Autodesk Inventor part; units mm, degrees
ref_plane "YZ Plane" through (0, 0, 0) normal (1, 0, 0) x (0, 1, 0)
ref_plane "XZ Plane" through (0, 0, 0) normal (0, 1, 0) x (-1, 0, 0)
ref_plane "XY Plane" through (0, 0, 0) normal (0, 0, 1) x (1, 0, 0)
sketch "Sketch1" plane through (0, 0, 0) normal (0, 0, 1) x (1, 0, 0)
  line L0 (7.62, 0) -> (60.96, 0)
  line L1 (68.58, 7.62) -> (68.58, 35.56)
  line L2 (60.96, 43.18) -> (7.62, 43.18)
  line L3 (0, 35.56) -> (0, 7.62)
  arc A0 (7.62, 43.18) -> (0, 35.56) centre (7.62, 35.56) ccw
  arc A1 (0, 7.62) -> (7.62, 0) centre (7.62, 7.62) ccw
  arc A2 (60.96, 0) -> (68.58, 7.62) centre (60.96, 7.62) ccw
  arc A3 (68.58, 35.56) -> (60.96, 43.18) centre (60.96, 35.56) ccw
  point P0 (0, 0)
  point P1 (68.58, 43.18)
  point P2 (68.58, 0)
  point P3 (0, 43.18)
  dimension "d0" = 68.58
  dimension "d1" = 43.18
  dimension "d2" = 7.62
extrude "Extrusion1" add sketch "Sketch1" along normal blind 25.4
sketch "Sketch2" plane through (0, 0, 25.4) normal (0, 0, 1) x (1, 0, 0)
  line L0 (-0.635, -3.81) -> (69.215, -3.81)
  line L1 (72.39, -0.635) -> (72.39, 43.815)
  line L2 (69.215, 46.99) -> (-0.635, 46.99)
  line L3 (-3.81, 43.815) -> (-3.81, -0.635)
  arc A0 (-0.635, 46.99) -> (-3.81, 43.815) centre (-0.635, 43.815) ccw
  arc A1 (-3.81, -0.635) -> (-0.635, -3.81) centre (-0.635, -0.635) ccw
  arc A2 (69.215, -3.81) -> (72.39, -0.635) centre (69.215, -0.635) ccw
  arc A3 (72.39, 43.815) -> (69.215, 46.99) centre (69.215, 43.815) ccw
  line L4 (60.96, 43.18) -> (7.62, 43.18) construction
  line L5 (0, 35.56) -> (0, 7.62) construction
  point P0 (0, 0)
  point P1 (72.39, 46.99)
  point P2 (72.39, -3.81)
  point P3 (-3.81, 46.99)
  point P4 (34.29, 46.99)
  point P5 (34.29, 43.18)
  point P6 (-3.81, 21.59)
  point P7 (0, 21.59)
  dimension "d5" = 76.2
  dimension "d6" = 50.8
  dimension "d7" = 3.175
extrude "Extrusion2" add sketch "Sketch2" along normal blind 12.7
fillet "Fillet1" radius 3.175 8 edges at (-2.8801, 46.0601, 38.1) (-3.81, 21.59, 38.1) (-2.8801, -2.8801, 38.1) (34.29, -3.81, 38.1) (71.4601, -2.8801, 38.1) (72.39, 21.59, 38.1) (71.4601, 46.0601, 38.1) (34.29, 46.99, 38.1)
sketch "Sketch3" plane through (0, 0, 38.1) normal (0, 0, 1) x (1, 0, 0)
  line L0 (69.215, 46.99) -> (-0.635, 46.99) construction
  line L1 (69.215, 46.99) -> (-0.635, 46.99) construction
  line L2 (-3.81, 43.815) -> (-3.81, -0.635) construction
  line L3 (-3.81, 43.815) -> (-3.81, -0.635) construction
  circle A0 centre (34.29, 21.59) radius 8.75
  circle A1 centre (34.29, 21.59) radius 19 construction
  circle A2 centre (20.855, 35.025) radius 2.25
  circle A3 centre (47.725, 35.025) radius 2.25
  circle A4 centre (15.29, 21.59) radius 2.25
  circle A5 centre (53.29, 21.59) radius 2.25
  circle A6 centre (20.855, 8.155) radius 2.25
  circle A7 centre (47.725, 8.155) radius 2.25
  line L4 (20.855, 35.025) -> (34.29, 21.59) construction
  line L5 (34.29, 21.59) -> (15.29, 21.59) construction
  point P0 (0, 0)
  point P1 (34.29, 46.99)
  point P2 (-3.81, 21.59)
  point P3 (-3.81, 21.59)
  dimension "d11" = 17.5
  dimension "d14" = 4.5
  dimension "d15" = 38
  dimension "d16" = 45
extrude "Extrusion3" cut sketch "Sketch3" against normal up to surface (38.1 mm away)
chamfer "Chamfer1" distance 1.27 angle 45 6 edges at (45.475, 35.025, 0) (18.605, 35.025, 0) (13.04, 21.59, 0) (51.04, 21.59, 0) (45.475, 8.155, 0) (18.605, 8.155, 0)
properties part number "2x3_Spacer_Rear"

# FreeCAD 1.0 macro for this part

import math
import FreeCAD as App
import Part
import Sketcher
from FreeCAD import Vector
Q = App.Units.Quantity


def edges_at(feature, points):
    """Names of the edges that pass closest to the given points."""
    edges = feature.Shape.Edges
    near = lambda p: min(range(len(edges)), key=lambda i: edges[i].distToShape(Part.Vertex(*p))[0])
    return sorted({f"Edge{near(p) + 1}" for p in points})

doc = App.newDocument("Part")
params = doc.addObject("Spreadsheet::Sheet", "Params")
for row, (alias, value) in enumerate([
    ("sketch1_radius", "0.3 in"),
    ("pad1_length", "1 in"),
    ("sketch2_radius", "0.125 in"),
    ("sketch2_width", "2.75 in"),
    ("pad2_length", "0.5 in"),
    ("fillet_radius", "0.125 in"),
    ("pocket1_length", "1.5 in"),
    ("chamfer_size", "0.05 in"),
], start=1):
    params.set(f"A{row}", alias)
    params.set(f"B{row}", "=" + value)
    params.setAlias(f"B{row}", alias)

body = doc.addObject("PartDesign::Body", "Body")

sketch1 = body.newObject("Sketcher::SketchObject", "Sketch")
sketch1.AttachmentSupport = (doc.getObject("XY_Plane"), [""])
sketch1.MapMode = "FlatFace"
sketch1.addGeometry(Part.ArcOfCircle(Part.Circle(Vector(8, 8, 0), Vector(0, 0, 1), 8), math.radians(180), math.radians(270)), False)
sketch1.addGeometry(Part.LineSegment(Vector(8, 0, 0), Vector(61, 0, 0)), False)
sketch1.addGeometry(Part.ArcOfCircle(Part.Circle(Vector(61, 8, 0), Vector(0, 0, 1), 8), math.radians(-90), math.radians(0)), False)
sketch1.addGeometry(Part.LineSegment(Vector(69, 8, 0), Vector(69, 36, 0)), False)
sketch1.addGeometry(Part.ArcOfCircle(Part.Circle(Vector(61, 36, 0), Vector(0, 0, 1), 8), math.radians(0), math.radians(90)), False)
sketch1.addGeometry(Part.LineSegment(Vector(61, 43, 0), Vector(8, 43, 0)), False)
sketch1.addGeometry(Part.ArcOfCircle(Part.Circle(Vector(8, 36, 0), Vector(0, 0, 1), 8), math.radians(90), math.radians(180)), False)
sketch1.addGeometry(Part.LineSegment(Vector(0, 36, 0), Vector(0, 8, 0)), False)
sketch1.addConstraint(Sketcher.Constraint("Tangent", 0, 2, 1, 1))
sketch1.addConstraint(Sketcher.Constraint("Tangent", 1, 2, 2, 1))
sketch1.addConstraint(Sketcher.Constraint("Tangent", 2, 2, 3, 1))
sketch1.addConstraint(Sketcher.Constraint("Tangent", 3, 2, 4, 1))
sketch1.addConstraint(Sketcher.Constraint("Tangent", 4, 2, 5, 1))
sketch1.addConstraint(Sketcher.Constraint("Tangent", 5, 2, 6, 1))
sketch1.addConstraint(Sketcher.Constraint("Tangent", 6, 2, 7, 1))
sketch1.addConstraint(Sketcher.Constraint("Tangent", 7, 2, 0, 1))
sketch1.addConstraint(Sketcher.Constraint("Horizontal", 1))
sketch1.addConstraint(Sketcher.Constraint("Vertical", 3))
sketch1.addConstraint(Sketcher.Constraint("Horizontal", 5))
sketch1.addConstraint(Sketcher.Constraint("Vertical", 7))
sketch1.addConstraint(Sketcher.Constraint("Equal", 0, 2))
sketch1.addConstraint(Sketcher.Constraint("Equal", 2, 4))
sketch1.addConstraint(Sketcher.Constraint("Equal", 4, 6))
sketch1.addConstraint(Sketcher.Constraint("PointOnObject", 0, 2, -1))
sketch1.addConstraint(Sketcher.Constraint("PointOnObject", 6, 2, -2))
sketch1.addConstraint(Sketcher.Constraint("Radius", 0, Q("0.3 in")))
sketch1.addConstraint(Sketcher.Constraint("DistanceX", -1, 1, 2, 2, Q("2.7 in")))
sketch1.addConstraint(Sketcher.Constraint("DistanceY", -1, 1, 4, 2, Q("1.7 in")))
sketch1.setExpression("Constraints[17]", "Params.sketch1_radius")
pad1 = body.newObject("PartDesign::Pad", "Pad")
pad1.Profile = sketch1
pad1.setExpression("Length", "Params.pad1_length")

sketch2 = body.newObject("Sketcher::SketchObject", "Sketch001")
sketch2.AttachmentSupport = (doc.getObject("XY_Plane"), [""])
sketch2.MapMode = "FlatFace"
sketch2.AttachmentOffset = App.Placement(Vector(0, 0, 1 * 25.4), App.Rotation())
sketch2.addGeometry(Part.ArcOfCircle(Part.Circle(Vector(-0.6, -0.6, 0), Vector(0, 0, 1), 3.2), math.radians(180), math.radians(270)), False)
sketch2.addGeometry(Part.LineSegment(Vector(-0.6, -3.8, 0), Vector(69.2, -3.8, 0)), False)
sketch2.addGeometry(Part.ArcOfCircle(Part.Circle(Vector(69.2, -0.6, 0), Vector(0, 0, 1), 3.2), math.radians(-90), math.radians(0)), False)
sketch2.addGeometry(Part.LineSegment(Vector(72.4, -0.6, 0), Vector(72.4, 43.8, 0)), False)
sketch2.addGeometry(Part.ArcOfCircle(Part.Circle(Vector(69.2, 43.8, 0), Vector(0, 0, 1), 3.2), math.radians(0), math.radians(90)), False)
sketch2.addGeometry(Part.LineSegment(Vector(69.2, 47, 0), Vector(-0.6, 47, 0)), False)
sketch2.addGeometry(Part.ArcOfCircle(Part.Circle(Vector(-0.6, 43.8, 0), Vector(0, 0, 1), 3.2), math.radians(90), math.radians(180)), False)
sketch2.addGeometry(Part.LineSegment(Vector(-3.8, 43.8, 0), Vector(-3.8, -0.6, 0)), False)
sketch2.addConstraint(Sketcher.Constraint("Tangent", 0, 2, 1, 1))
sketch2.addConstraint(Sketcher.Constraint("Tangent", 1, 2, 2, 1))
sketch2.addConstraint(Sketcher.Constraint("Tangent", 2, 2, 3, 1))
sketch2.addConstraint(Sketcher.Constraint("Tangent", 3, 2, 4, 1))
sketch2.addConstraint(Sketcher.Constraint("Tangent", 4, 2, 5, 1))
sketch2.addConstraint(Sketcher.Constraint("Tangent", 5, 2, 6, 1))
sketch2.addConstraint(Sketcher.Constraint("Tangent", 6, 2, 7, 1))
sketch2.addConstraint(Sketcher.Constraint("Tangent", 7, 2, 0, 1))
sketch2.addConstraint(Sketcher.Constraint("Horizontal", 1))
sketch2.addConstraint(Sketcher.Constraint("Vertical", 3))
sketch2.addConstraint(Sketcher.Constraint("Horizontal", 5))
sketch2.addConstraint(Sketcher.Constraint("Vertical", 7))
sketch2.addConstraint(Sketcher.Constraint("Equal", 0, 2))
sketch2.addConstraint(Sketcher.Constraint("Equal", 2, 4))
sketch2.addConstraint(Sketcher.Constraint("Equal", 4, 6))
sketch2.addConstraint(Sketcher.Constraint("Radius", 0, Q("0.125 in")))
sketch2.addConstraint(Sketcher.Constraint("DistanceY", 1, 2, 4, 2, Q("2 in")))
sketch2.addConstraint(Sketcher.Constraint("DistanceX", 1, 1, 1, 2, Q("2.75 in")))
sketch2.addConstraint(Sketcher.Constraint("DistanceY", 0, 2, -1, 1, Q("0.15 in")))
sketch2.addConstraint(Sketcher.Constraint("DistanceX", -1, 1, 2, 2, Q("2.85 in")))
sketch2.setExpression("Constraints[15]", "Params.sketch2_radius")
sketch2.setExpression("Constraints[17]", "Params.sketch2_width")
pad2 = body.newObject("PartDesign::Pad", "Pad001")
pad2.Profile = sketch2
pad2.setExpression("Length", "Params.pad2_length")
doc.recompute()

fillet = body.newObject("PartDesign::Fillet", "Fillet")
fillet.Base = (pad2, edges_at(pad2, [
    (-2.88, 46.06, 38.1),
    (-3.81, 21.59, 38.1),
    (-2.88, -2.88, 38.1),
    (34.29, -3.81, 38.1),
    (71.46, -2.88, 38.1),
    (72.39, 21.59, 38.1),
    (71.46, 46.06, 38.1),
    (34.29, 46.99, 38.1),
]))
fillet.setExpression("Radius", "Params.fillet_radius")

sketch3 = body.newObject("Sketcher::SketchObject", "Sketch002")
sketch3.AttachmentSupport = (doc.getObject("XY_Plane"), [""])
sketch3.MapMode = "FlatFace"
sketch3.AttachmentOffset = App.Placement(Vector(0, 0, 1.5 * 25.4), App.Rotation())
sketch3.addGeometry(Part.Circle(Vector(34.3, 21.6, 0), Vector(0, 0, 1), 8.8), False)
sketch3.addGeometry(Part.Circle(Vector(20.9, 35, 0), Vector(0, 0, 1), 2.2), False)
sketch3.addGeometry(Part.Circle(Vector(47.7, 35, 0), Vector(0, 0, 1), 2.2), False)
sketch3.addGeometry(Part.Circle(Vector(15.3, 21.6, 0), Vector(0, 0, 1), 2.2), False)
sketch3.addGeometry(Part.Circle(Vector(53.3, 21.6, 0), Vector(0, 0, 1), 2.2), False)
sketch3.addGeometry(Part.Circle(Vector(20.9, 8.2, 0), Vector(0, 0, 1), 2.2), False)
sketch3.addGeometry(Part.Circle(Vector(47.7, 8.2, 0), Vector(0, 0, 1), 2.2), False)
sketch3.addConstraint(Sketcher.Constraint("Equal", 1, 2))
sketch3.addConstraint(Sketcher.Constraint("Equal", 2, 3))
sketch3.addConstraint(Sketcher.Constraint("Equal", 3, 4))
sketch3.addConstraint(Sketcher.Constraint("Equal", 4, 5))
sketch3.addConstraint(Sketcher.Constraint("Equal", 5, 6))
sketch3.addConstraint(Sketcher.Constraint("Horizontal", 1, 3, 2, 3))
sketch3.addConstraint(Sketcher.Constraint("Horizontal", 0, 3, 3, 3))
sketch3.addConstraint(Sketcher.Constraint("Horizontal", 3, 3, 4, 3))
sketch3.addConstraint(Sketcher.Constraint("Horizontal", 5, 3, 6, 3))
sketch3.addConstraint(Sketcher.Constraint("Vertical", 1, 3, 5, 3))
sketch3.addConstraint(Sketcher.Constraint("Vertical", 2, 3, 6, 3))
sketch3.addConstraint(Sketcher.Constraint("Diameter", 0, Q("17.5 mm")))
sketch3.addConstraint(Sketcher.Constraint("Diameter", 1, Q("4.5 mm")))
sketch3.addConstraint(Sketcher.Constraint("DistanceX", -1, 1, 0, 3, Q("1.35 in")))
sketch3.addConstraint(Sketcher.Constraint("DistanceY", -1, 1, 0, 3, Q("0.85 in")))
sketch3.addConstraint(Sketcher.Constraint("DistanceX", 3, 3, 4, 3, Q("38 mm")))
sketch3.addConstraint(Sketcher.Constraint("DistanceX", 3, 3, 1, 3, Q("0.2191 in")))
sketch3.addConstraint(Sketcher.Constraint("DistanceX", 2, 3, 4, 3, Q("0.2191 in")))
sketch3.addConstraint(Sketcher.Constraint("DistanceX", -1, 1, 1, 3, Q("20.855 mm")))
sketch3.addConstraint(Sketcher.Constraint("DistanceY", -1, 1, 1, 3, Q("35.025 mm")))
sketch3.addConstraint(Sketcher.Constraint("DistanceY", -1, 1, 5, 3, Q("8.155 mm")))
pocket1 = body.newObject("PartDesign::Pocket", "Pocket")
pocket1.Profile = sketch3
pocket1.setExpression("Length", "Params.pocket1_length")
doc.recompute()

chamfer = body.newObject("PartDesign::Chamfer", "Chamfer")
chamfer.Base = (pocket1, edges_at(pocket1, [
    (45.475, 35.025, 0),
    (18.605, 35.025, 0),
    (13.04, 21.59, 0),
    (51.04, 21.59, 0),
    (45.475, 8.155, 0),
    (18.605, 8.155, 0),
]))
chamfer.setExpression("Size", "Params.chamfer_size")

doc.recompute()
